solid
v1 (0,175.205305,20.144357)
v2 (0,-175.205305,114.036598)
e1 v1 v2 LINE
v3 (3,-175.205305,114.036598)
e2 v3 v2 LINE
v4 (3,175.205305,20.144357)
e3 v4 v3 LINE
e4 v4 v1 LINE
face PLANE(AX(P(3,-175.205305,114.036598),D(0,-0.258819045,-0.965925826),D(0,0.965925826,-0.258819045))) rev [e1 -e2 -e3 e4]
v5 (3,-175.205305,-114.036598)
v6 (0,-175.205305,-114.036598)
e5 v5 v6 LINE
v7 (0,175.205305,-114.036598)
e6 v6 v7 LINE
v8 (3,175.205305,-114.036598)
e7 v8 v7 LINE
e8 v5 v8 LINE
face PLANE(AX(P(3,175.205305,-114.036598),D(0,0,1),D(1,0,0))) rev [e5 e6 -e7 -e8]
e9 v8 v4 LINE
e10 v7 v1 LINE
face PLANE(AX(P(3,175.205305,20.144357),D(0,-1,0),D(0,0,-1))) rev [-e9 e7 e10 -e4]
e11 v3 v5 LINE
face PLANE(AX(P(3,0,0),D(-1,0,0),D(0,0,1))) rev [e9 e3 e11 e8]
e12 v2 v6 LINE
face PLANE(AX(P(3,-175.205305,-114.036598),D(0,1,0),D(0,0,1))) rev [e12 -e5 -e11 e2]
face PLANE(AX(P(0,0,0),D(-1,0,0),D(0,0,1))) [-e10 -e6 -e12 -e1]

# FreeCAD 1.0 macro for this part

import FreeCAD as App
import Part
import Sketcher
Q = App.Units.Quantity

doc = App.newDocument("Part")
params = doc.addObject("Spreadsheet::Sheet", "Params")
for row, (alias, value) in enumerate([
    ("pad1_length", "3 mm"),
], start=1):
    params.set(f"A{row}", alias)
    params.set(f"B{row}", "=" + value)
    params.setAlias(f"B{row}", alias)

body = doc.addObject("PartDesign::Body", "Body")

sketch1 = body.newObject("Sketcher::SketchObject", "Sketch")
sketch1.AttachmentSupport = (doc.getObject("YZ_Plane"), [""])
sketch1.MapMode = "FlatFace"
sketch1.addGeometry([
    Part.LineSegment(App.Vector(175, -114, 0), App.Vector(175, 20, 0)),
    Part.LineSegment(App.Vector(175, 20, 0), App.Vector(-175, 114, 0)),
    Part.LineSegment(App.Vector(-175, 114, 0), App.Vector(-175, -114, 0)),
    Part.LineSegment(App.Vector(-175, -114, 0), App.Vector(175, -114, 0)),
], False)
sketch1.addConstraint([
    Sketcher.Constraint("Coincident", 0, 2, 1, 1),
    Sketcher.Constraint("Coincident", 1, 2, 2, 1),
    Sketcher.Constraint("Coincident", 2, 2, 3, 1),
    Sketcher.Constraint("Coincident", 3, 2, 0, 1),
    Sketcher.Constraint("Vertical", 0),
    Sketcher.Constraint("Vertical", 2),
    Sketcher.Constraint("Horizontal", 3),
    Sketcher.Constraint("Symmetric", 1, 2, 3, 2, -1, 1),
    Sketcher.Constraint("Angle", 1, Q("165 deg")),
    Sketcher.Constraint("DistanceX", 3, 1, 3, 2, 350.410611),
    Sketcher.Constraint("DistanceY", 0, 1, 0, 2, 134.180955),
])
pad1 = body.newObject("PartDesign::Pad", "Pad")
pad1.Profile = sketch1
pad1.setExpression("Length", "Params.pad1_length")

doc.recompute()
